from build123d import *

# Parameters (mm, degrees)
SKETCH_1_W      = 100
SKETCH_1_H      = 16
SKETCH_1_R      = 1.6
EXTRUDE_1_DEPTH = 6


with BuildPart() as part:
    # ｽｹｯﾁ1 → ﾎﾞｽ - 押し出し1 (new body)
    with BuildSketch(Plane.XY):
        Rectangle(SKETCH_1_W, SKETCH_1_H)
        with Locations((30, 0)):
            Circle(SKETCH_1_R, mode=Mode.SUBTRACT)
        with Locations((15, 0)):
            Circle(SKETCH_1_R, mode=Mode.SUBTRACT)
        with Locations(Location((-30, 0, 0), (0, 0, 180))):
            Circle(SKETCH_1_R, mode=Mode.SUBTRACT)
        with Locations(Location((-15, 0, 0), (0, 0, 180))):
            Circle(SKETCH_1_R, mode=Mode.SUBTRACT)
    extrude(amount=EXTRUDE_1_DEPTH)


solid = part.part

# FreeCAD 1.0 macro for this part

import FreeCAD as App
import Part
import Sketcher

V = App.Vector

doc = App.newDocument("Part")
body = doc.addObject("PartDesign::Body", "Body")

sketch1 = body.newObject("Sketcher::SketchObject", "Sketch")
sketch1.AttachmentSupport = (doc.getObject("XY_Plane"), [""])
sketch1.MapMode = "FlatFace"
sketch1.addGeometry([
    Part.LineSegment(V(-50, 8, 0), V(-50, -8, 0)),
    Part.LineSegment(V(-50, -8, 0), V(50, -8, 0)),
    Part.LineSegment(V(50, -8, 0), V(50, 8, 0)),
    Part.LineSegment(V(50, 8, 0), V(-50, 8, 0)),
    Part.Circle(V(-30, 0, 0), V(0, 0, 1), 1.6),
    Part.Circle(V(-15, 0, 0), V(0, 0, 1), 1.6),
    Part.Circle(V(15, 0, 0), V(0, 0, 1), 1.6),
    Part.Circle(V(30, 0, 0), V(0, 0, 1), 1.6),
], False)
sketch1.addConstraint([
    Sketcher.Constraint("Coincident", 0, 2, 1, 1),
    Sketcher.Constraint("Coincident", 1, 2, 2, 1),
    Sketcher.Constraint("Coincident", 2, 2, 3, 1),
    Sketcher.Constraint("Coincident", 3, 2, 0, 1),
    Sketcher.Constraint("Vertical", 0),
    Sketcher.Constraint("Horizontal", 1),
    Sketcher.Constraint("Vertical", 2),
    Sketcher.Constraint("Horizontal", 3),
    Sketcher.Constraint("Equal", 4, 5),
    Sketcher.Constraint("Equal", 5, 6),
    Sketcher.Constraint("Equal", 6, 7),
    Sketcher.Constraint("Symmetric", 5, 3, 6, 3, -1, 1),
    Sketcher.Constraint("Symmetric", 4, 3, 7, 3, -1, 1),
    Sketcher.Constraint("Symmetric", 0, 2, 2, 2, -1, 1),
    Sketcher.Constraint("PointOnObject", 4, 3, -1),
    Sketcher.Constraint("PointOnObject", 5, 3, -1),
    Sketcher.Constraint("Diameter", 4, 3.2),
    Sketcher.Constraint("DistanceX", 1, 1, 1, 2, 100.0),
    Sketcher.Constraint("DistanceY", 0, 2, 0, 1, 16.0),
    Sketcher.Constraint("DistanceX", 4, 3, -1, 1, 30.0),
    Sketcher.Constraint("DistanceX", 5, 3, -1, 1, 15.0),
])
pad1 = body.newObject("PartDesign::Pad", "Pad")
pad1.Profile = sketch1
pad1.Length = 6

doc.recompute()
